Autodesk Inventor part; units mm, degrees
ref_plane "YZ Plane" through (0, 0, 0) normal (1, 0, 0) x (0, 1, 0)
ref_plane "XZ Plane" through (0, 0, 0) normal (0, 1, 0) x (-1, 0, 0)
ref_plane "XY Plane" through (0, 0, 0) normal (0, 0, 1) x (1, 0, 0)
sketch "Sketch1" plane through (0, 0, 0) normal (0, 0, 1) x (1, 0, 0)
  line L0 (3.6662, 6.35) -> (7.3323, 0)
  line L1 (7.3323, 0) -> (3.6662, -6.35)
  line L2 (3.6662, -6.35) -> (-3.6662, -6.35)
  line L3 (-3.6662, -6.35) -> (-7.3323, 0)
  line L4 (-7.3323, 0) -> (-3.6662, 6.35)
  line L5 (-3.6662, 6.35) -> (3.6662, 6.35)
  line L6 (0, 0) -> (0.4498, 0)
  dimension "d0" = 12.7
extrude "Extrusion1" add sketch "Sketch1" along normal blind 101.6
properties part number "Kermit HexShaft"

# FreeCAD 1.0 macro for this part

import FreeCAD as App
import Part
import Sketcher
from FreeCAD import Vector
Q = App.Units.Quantity

doc = App.newDocument("Part")
body = doc.addObject("PartDesign::Body", "Body")

sketch1 = doc.addObject("Sketcher::SketchObject", "Sketch")
body.addObject(sketch1)
sketch1.AttachmentSupport = (doc.XY_Plane, [""])
sketch1.MapMode = "FlatFace"
sketch1.addGeometry(Part.LineSegment(Vector(7, 0, 0), Vector(4, 6, 0)), False)
sketch1.addGeometry(Part.LineSegment(Vector(4, 6, 0), Vector(-4, 6, 0)), False)
sketch1.addGeometry(Part.LineSegment(Vector(-4, 6, 0), Vector(-7, 0, 0)), False)
sketch1.addGeometry(Part.LineSegment(Vector(-7, 0, 0), Vector(-4, -6, 0)), False)
sketch1.addGeometry(Part.LineSegment(Vector(-4, -6, 0), Vector(4, -6, 0)), False)
sketch1.addGeometry(Part.LineSegment(Vector(4, -6, 0), Vector(7, 0, 0)), False)
sketch1.addConstraint(Sketcher.Constraint("Coincident", 0, 2, 1, 1))
sketch1.addConstraint(Sketcher.Constraint("Coincident", 1, 2, 2, 1))
sketch1.addConstraint(Sketcher.Constraint("Coincident", 2, 2, 3, 1))
sketch1.addConstraint(Sketcher.Constraint("Coincident", 3, 2, 4, 1))
sketch1.addConstraint(Sketcher.Constraint("Coincident", 4, 2, 5, 1))
sketch1.addConstraint(Sketcher.Constraint("Coincident", 5, 2, 0, 1))
sketch1.addConstraint(Sketcher.Constraint("Horizontal", 1))
sketch1.addConstraint(Sketcher.Constraint("Horizontal", 4))
sketch1.addConstraint(Sketcher.Constraint("Symmetric", 0, 2, 3, 2, -1, 1))
sketch1.addConstraint(Sketcher.Constraint("Symmetric", 2, 2, 5, 2, -1, 1))
sketch1.addConstraint(Sketcher.Constraint("PointOnObject", 2, 2, -1))
sketch1.addConstraint(Sketcher.Constraint("Parallel", 2, 5))
sketch1.addConstraint(Sketcher.Constraint("Vertical", 1, 2, 3, 2))
sketch1.addConstraint(Sketcher.Constraint("DistanceY", 3, 2, 1, 2, Q("0.5 in")))
sketch1.addConstraint(Sketcher.Constraint("Angle", 0, Q("119.9995 deg")))
sketch1.addConstraint(Sketcher.Constraint("DistanceX", 2, 2, 0, 2, Q("0.433 in")))
pad1 = doc.addObject("PartDesign::Pad", "Pad")
body.addObject(pad1)
pad1.Profile = sketch1
pad1.Length = Q("4 in")

doc.recompute()
